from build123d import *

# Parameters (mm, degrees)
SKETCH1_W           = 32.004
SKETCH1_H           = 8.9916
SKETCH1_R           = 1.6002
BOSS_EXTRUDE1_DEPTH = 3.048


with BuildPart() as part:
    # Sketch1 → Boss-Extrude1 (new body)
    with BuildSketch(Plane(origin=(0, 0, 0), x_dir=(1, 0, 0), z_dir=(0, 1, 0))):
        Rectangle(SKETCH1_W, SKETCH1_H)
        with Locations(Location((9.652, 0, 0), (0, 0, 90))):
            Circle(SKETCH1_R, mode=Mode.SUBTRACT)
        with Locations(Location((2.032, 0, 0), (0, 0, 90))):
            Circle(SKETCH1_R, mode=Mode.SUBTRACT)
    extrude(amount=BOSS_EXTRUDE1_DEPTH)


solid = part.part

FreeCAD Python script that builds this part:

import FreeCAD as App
import Part
import Sketcher
from FreeCAD import Vector
Q = App.Units.Quantity

doc = App.newDocument("Part")
body = doc.addObject("PartDesign::Body", "Body")

sketch1 = body.newObject("Sketcher::SketchObject", "Sketch")
sketch1.AttachmentSupport = (doc.getObject("XZ_Plane"), [""])
sketch1.MapMode = "FlatFace"
sketch1.addGeometry([
    Part.LineSegment(Vector(-16, -4.5, 0), Vector(-16, 4.5, 0)),
    Part.LineSegment(Vector(-16, 4.5, 0), Vector(16, 4.5, 0)),
    Part.LineSegment(Vector(16, 4.5, 0), Vector(16, -4.5, 0)),
    Part.LineSegment(Vector(16, -4.5, 0), Vector(-16, -4.5, 0)),
    Part.Circle(Vector(2, 0, 0), Vector(0, 0, 1), 1.6),
    Part.Circle(Vector(9.7, 0, 0), Vector(0, 0, 1), 1.6),
], False)
sketch1.addConstraint([
    Sketcher.Constraint("Coincident", 0, 2, 1, 1),
    Sketcher.Constraint("Coincident", 1, 2, 2, 1),
    Sketcher.Constraint("Coincident", 2, 2, 3, 1),
    Sketcher.Constraint("Coincident", 3, 2, 0, 1),
    Sketcher.Constraint("Vertical", 0),
    Sketcher.Constraint("Horizontal", 1),
    Sketcher.Constraint("Vertical", 2),
    Sketcher.Constraint("Horizontal", 3),
    Sketcher.Constraint("Equal", 4, 5),
    Sketcher.Constraint("Symmetric", 0, 2, 2, 2, -1, 1),
    Sketcher.Constraint("PointOnObject", 4, 3, -1),
    Sketcher.Constraint("PointOnObject", 5, 3, -1),
    Sketcher.Constraint("Diameter", 4, Q("0.126 in")),
    Sketcher.Constraint("DistanceX", 1, 1, 1, 2, Q("1.26 in")),
    Sketcher.Constraint("DistanceX", 4, 3, 5, 3, Q("0.3 in")),
    Sketcher.Constraint("DistanceY", 0, 1, 0, 2, Q("0.354 in")),
    Sketcher.Constraint("DistanceX", -1, 1, 4, 3, Q("0.08 in")),
])
pad1 = body.newObject("PartDesign::Pad", "Pad")
pad1.Profile = sketch1
pad1.Length = Q("0.12 in")
pad1.Reversed = True

doc.recompute()
